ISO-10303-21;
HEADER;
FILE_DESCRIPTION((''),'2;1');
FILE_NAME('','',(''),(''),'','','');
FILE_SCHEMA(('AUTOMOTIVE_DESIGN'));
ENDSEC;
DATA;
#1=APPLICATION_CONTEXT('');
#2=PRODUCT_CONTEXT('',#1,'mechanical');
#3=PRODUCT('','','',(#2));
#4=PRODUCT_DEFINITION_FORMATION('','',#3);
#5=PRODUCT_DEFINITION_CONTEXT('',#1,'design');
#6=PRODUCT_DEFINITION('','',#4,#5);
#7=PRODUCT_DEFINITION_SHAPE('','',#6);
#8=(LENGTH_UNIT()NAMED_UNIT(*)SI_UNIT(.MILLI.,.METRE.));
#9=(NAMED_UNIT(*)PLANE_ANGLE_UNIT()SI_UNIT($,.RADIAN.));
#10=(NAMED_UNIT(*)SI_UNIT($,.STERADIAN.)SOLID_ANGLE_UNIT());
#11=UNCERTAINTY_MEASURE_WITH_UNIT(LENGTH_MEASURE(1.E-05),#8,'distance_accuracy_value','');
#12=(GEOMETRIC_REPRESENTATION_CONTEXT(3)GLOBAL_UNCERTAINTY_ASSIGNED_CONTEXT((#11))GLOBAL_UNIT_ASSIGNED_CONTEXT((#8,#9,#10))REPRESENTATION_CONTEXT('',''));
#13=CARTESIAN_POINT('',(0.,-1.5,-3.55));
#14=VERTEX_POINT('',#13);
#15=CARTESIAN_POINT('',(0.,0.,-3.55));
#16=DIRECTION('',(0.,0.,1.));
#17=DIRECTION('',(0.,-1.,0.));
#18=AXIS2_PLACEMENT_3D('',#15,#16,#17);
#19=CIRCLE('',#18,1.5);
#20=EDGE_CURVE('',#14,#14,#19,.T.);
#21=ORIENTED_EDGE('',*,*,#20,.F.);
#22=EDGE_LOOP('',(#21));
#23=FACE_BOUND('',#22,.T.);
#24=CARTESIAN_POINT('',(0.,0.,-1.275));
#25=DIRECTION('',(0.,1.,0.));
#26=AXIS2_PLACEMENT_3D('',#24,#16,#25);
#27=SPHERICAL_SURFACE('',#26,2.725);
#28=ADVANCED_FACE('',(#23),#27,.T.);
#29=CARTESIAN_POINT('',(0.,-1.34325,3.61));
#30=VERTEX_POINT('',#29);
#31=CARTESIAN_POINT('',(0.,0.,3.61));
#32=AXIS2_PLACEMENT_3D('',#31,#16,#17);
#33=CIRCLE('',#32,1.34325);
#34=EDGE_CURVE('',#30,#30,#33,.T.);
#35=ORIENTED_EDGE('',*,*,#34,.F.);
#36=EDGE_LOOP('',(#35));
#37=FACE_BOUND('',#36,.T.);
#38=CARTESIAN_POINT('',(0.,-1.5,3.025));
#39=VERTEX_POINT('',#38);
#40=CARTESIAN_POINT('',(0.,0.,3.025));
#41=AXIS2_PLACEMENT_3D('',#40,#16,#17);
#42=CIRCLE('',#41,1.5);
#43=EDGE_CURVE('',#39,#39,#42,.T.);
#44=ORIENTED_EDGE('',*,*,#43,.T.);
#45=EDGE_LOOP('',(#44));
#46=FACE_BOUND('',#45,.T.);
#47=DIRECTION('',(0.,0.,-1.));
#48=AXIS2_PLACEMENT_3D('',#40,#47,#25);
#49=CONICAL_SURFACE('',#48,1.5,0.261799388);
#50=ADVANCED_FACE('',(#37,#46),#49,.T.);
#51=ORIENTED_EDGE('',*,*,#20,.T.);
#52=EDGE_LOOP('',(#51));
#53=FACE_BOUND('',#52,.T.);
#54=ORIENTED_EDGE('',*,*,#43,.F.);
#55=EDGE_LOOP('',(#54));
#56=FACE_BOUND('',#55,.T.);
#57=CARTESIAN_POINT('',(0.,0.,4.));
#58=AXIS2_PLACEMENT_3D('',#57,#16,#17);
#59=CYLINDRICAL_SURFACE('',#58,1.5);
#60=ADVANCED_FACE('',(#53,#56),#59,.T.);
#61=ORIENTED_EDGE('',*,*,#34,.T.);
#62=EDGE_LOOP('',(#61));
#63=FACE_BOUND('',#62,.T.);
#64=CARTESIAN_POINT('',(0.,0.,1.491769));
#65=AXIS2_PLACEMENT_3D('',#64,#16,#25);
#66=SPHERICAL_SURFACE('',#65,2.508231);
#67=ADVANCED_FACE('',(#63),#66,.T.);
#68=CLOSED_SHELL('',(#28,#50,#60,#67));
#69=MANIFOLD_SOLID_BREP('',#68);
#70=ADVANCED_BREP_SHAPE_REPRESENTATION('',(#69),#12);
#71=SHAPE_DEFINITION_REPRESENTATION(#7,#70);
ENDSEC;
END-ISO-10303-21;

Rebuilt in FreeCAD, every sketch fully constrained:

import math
import FreeCAD as App
import Part
import Sketcher
Q = App.Units.Quantity

doc = App.newDocument("Part")
body = doc.addObject("PartDesign::Body", "Body")

sketch1 = body.newObject("Sketcher::SketchObject", "Sketch")
sketch1.AttachmentSupport = (doc.getObject("YZ_Plane"), [""])
sketch1.MapMode = "FlatFace"
sketch1.addGeometry([
    Part.LineSegment(App.Vector(0, 4, 0), App.Vector(0, -4, 0)),
    Part.ArcOfCircle(Part.Circle(App.Vector(0, -1.3, 0), App.Vector(0, 0, 1), 2.7), math.radians(-90), math.radians(-57)),
    Part.LineSegment(App.Vector(1.5, -3.5, 0), App.Vector(1.5, 3, 0)),
    Part.LineSegment(App.Vector(1.5, 3, 0), App.Vector(1.3, 3.6, 0)),
    Part.ArcOfCircle(Part.Circle(App.Vector(0, 1.5, 0), App.Vector(0, 0, 1), 2.5), math.radians(58), math.radians(90)),
], False)
sketch1.addConstraint([
    Sketcher.Constraint("Coincident", 0, 2, 1, 1),
    Sketcher.Constraint("Coincident", 1, 2, 2, 1),
    Sketcher.Constraint("Coincident", 2, 2, 3, 1),
    Sketcher.Constraint("Coincident", 3, 2, 4, 1),
    Sketcher.Constraint("Coincident", 4, 2, 0, 1),
    Sketcher.Constraint("Vertical", 0),
    Sketcher.Constraint("Vertical", 2),
    Sketcher.Constraint("Symmetric", 0, 2, 4, 2, -1, 1),
    Sketcher.Constraint("PointOnObject", 1, 3, -2),
    Sketcher.Constraint("PointOnObject", 4, 3, -2),
    Sketcher.Constraint("DistanceY", 0, 2, 0, 1, 8.0),
    Sketcher.Constraint("Angle", 3, Q("105 deg")),
    Sketcher.Constraint("Radius", 1, 2.725),
    Sketcher.Constraint("DistanceX", -1, 1, 1, 2, 1.5),
    Sketcher.Constraint("DistanceY", 1, 3, 2, 2, 4.3),
    Sketcher.Constraint("DistanceY", -1, 1, 3, 2, 3.61),
])
revolution = body.newObject("PartDesign::Revolution", "Revolution")
revolution.Profile = sketch1
revolution.ReferenceAxis = (sketch1, ["V_Axis"])
revolution.Angle = 360

doc.recompute()
